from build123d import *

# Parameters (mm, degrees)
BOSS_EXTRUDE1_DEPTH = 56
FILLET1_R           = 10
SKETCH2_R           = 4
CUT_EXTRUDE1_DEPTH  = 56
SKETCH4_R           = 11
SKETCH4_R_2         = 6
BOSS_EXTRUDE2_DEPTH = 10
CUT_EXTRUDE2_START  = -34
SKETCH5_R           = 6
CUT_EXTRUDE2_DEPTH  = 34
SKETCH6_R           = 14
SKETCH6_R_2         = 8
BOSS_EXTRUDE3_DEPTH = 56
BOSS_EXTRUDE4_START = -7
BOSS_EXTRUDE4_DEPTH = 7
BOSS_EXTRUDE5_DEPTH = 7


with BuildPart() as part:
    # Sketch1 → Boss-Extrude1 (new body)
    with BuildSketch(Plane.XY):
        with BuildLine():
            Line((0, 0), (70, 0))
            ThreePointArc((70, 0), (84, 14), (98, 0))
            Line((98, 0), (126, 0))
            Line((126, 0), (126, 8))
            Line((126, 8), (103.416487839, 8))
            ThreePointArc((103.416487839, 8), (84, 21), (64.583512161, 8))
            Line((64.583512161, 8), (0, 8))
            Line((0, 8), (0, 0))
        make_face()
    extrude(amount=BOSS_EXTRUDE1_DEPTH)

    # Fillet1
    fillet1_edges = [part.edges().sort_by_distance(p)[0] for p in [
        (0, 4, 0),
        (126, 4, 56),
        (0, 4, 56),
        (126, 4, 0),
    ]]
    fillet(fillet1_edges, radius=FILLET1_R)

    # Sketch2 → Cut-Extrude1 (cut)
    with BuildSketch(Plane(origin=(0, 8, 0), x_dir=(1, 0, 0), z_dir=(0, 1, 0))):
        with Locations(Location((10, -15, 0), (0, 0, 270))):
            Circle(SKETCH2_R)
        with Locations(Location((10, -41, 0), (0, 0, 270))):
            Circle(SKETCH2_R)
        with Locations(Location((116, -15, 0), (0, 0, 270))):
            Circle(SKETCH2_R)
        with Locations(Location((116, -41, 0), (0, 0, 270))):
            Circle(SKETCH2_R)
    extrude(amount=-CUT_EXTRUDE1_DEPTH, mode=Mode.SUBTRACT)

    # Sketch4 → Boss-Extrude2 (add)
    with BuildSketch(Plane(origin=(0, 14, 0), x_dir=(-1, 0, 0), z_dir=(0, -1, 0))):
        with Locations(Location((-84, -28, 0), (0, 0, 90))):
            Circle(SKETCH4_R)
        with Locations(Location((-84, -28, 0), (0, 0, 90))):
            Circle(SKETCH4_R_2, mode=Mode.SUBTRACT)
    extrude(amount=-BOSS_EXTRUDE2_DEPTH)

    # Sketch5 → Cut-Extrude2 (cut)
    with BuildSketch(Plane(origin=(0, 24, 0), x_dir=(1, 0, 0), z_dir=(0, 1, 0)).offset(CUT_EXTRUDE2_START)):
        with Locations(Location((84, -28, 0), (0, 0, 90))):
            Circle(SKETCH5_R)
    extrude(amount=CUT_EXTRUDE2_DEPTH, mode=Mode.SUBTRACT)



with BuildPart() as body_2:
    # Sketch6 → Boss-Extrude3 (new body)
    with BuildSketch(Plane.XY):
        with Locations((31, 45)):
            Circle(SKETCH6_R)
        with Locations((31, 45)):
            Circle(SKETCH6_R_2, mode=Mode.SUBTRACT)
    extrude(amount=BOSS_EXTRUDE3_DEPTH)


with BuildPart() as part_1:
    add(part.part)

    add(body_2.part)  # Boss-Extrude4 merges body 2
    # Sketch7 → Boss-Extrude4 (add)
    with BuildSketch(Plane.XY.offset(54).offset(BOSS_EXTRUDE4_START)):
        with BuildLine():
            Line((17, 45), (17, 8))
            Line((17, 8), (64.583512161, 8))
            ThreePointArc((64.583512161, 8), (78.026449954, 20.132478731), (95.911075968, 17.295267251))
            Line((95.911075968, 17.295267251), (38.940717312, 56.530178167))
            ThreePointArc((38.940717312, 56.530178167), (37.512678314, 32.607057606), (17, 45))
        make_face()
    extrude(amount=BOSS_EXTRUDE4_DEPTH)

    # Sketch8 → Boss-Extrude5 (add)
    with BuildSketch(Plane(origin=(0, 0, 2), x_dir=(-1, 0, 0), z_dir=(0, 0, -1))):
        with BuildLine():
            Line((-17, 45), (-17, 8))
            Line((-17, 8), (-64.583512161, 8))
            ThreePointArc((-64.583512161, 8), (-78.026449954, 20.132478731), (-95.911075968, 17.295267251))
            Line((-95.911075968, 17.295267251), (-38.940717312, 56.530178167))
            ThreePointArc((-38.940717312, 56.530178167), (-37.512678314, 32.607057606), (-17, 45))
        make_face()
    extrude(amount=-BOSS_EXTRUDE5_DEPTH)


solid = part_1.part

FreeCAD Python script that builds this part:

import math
import FreeCAD as App
import Part
import Sketcher
Q = App.Units.Quantity


def edges_at(feature, points):
    """Names of the edges that pass closest to the given points."""
    edges = feature.Shape.Edges
    near = lambda p: min(range(len(edges)), key=lambda i: edges[i].distToShape(Part.Vertex(*p))[0])
    return sorted({f"Edge{near(p) + 1}" for p in points})

doc = App.newDocument("Part")
params = doc.addObject("Spreadsheet::Sheet", "Params")
for row, (alias, value) in enumerate([
    ("sketch1_radius", "14 mm"),
    ("sketch1_radius2", "21 mm"),
    ("sketch1_width", "70 mm"),
    ("sketch1_width2", "28 mm"),
    ("sketch1_height", "8 mm"),
    ("pad1_length", "56 mm"),
    ("fillet_radius", "10 mm"),
    ("sketch2_diameter", "8 mm"),
    ("pocket1_length", "56 mm"),
    ("sketch3_diameter", "22 mm"),
    ("sketch3_diameter2", "12 mm"),
    ("pad2_length", "10 mm"),
    ("sketch4_diameter", "12 mm"),
    ("pocket2_length", "34 mm"),
    ("sketch5_diameter", "28 mm"),
    ("sketch5_diameter2", "16 mm"),
    ("pad3_length", "56 mm"),
    ("sketch6_radius", "21 mm"),
    ("sketch6_radius2", "14 mm"),
    ("sketch6_height", "37 mm"),
    ("pad4_length", "7 mm"),
    ("sketch7_radius", "14 mm"),
    ("sketch7_radius2", "21 mm"),
    ("sketch7_height", "37 mm"),
    ("pad5_length", "7 mm"),
], start=1):
    params.set(f"A{row}", alias)
    params.set(f"B{row}", "=" + value)
    params.setAlias(f"B{row}", alias)

body = doc.addObject("PartDesign::Body", "Body")

# Sketch on XY plane
sketch1 = doc.addObject("Sketcher::SketchObject", "Sketch")
body.addObject(sketch1)
sketch1.AttachmentSupport = (doc.XY_Plane, [""])
sketch1.MapMode = "FlatFace"
sketch1.addGeometry([
    Part.LineSegment(App.Vector(0, 0, 0), App.Vector(70, 0, 0)),  # 0
    Part.ArcOfCircle(Part.Circle(App.Vector(84, 0, 0), App.Vector(0, 0, 1), 14), math.radians(0), math.radians(180)),  # 1
    Part.LineSegment(App.Vector(98, 0, 0), App.Vector(126, 0, 0)),  # 2
    Part.LineSegment(App.Vector(126, 0, 0), App.Vector(126, 8, 0)),  # 3
    Part.LineSegment(App.Vector(126, 8, 0), App.Vector(103, 8, 0)),  # 4
    Part.ArcOfCircle(Part.Circle(App.Vector(84, 0, 0), App.Vector(0, 0, 1), 21), math.radians(22), math.radians(158)),  # 5
    Part.LineSegment(App.Vector(65, 8, 0), App.Vector(0, 8, 0)),  # 6
    Part.LineSegment(App.Vector(0, 8, 0), App.Vector(0, 0, 0)),  # 7
], False)
sketch1.addConstraint([
    Sketcher.Constraint("Coincident", 0, 2, 1, 2),
    Sketcher.Constraint("Coincident", 1, 1, 2, 1),
    Sketcher.Constraint("Coincident", 2, 2, 3, 1),
    Sketcher.Constraint("Coincident", 3, 2, 4, 1),
    Sketcher.Constraint("Coincident", 4, 2, 5, 1),
    Sketcher.Constraint("Coincident", 5, 2, 6, 1),
    Sketcher.Constraint("Coincident", 6, 2, 7, 1),
    Sketcher.Constraint("Coincident", 7, 2, 0, 1),
    Sketcher.Constraint("Horizontal", 0),
    Sketcher.Constraint("Horizontal", 2),
    Sketcher.Constraint("Vertical", 3),
    Sketcher.Constraint("Horizontal", 4),
    Sketcher.Constraint("Horizontal", 6),
    Sketcher.Constraint("Vertical", 7),
    Sketcher.Constraint("Coincident", 7, 2, -1, 1),
    Sketcher.Constraint("Coincident", 5, 3, 1, 3),
    Sketcher.Constraint("PointOnObject", 1, 3, -1),
    Sketcher.Constraint("PointOnObject", 1, 1, -1),
    Sketcher.Constraint("Horizontal", 4, 2, 5, 2),
    Sketcher.Constraint("Radius", 1, Q("14 mm")),
    Sketcher.Constraint("Radius", 5, Q("21 mm")),
    Sketcher.Constraint("DistanceX", 0, 1, 0, 2, Q("70 mm")),
    Sketcher.Constraint("DistanceX", 2, 1, 2, 2, Q("28 mm")),
    Sketcher.Constraint("DistanceY", 3, 1, 3, 2, Q("8 mm")),
])
sketch1.setExpression("Constraints[19]", "Params.sketch1_radius")
sketch1.setExpression("Constraints[20]", "Params.sketch1_radius2")
sketch1.setExpression("Constraints[21]", "Params.sketch1_width")
sketch1.setExpression("Constraints[22]", "Params.sketch1_width2")
sketch1.setExpression("Constraints[23]", "Params.sketch1_height")
pad1 = doc.addObject("PartDesign::Pad", "Pad")
body.addObject(pad1)
pad1.Profile = sketch1
pad1.setExpression("Length", "Params.pad1_length")
doc.recompute()

fillet = doc.addObject("PartDesign::Fillet", "Fillet")
body.addObject(fillet)
fillet.Base = (pad1, edges_at(pad1, [
    (0, 4, 0),
    (126, 4, 56),
    (0, 4, 56),
    (126, 4, 0),
]))
fillet.setExpression("Radius", "Params.fillet_radius")

# Sketch on XZ plane
sketch2 = doc.addObject("Sketcher::SketchObject", "Sketch001")
body.addObject(sketch2)
sketch2.AttachmentSupport = (doc.XZ_Plane, [""])
sketch2.MapMode = "FlatFace"
sketch2.AttachmentOffset = App.Placement(App.Vector(0, 0, -8), App.Rotation())
sketch2.addGeometry([
    Part.Circle(App.Vector(10, 15, 0), App.Vector(0, 0, 1), 4),
    Part.Circle(App.Vector(10, 41, 0), App.Vector(0, 0, 1), 4),
    Part.Circle(App.Vector(116, 15, 0), App.Vector(0, 0, 1), 4),
    Part.Circle(App.Vector(116, 41, 0), App.Vector(0, 0, 1), 4),
], False)
sketch2.addConstraint([
    Sketcher.Constraint("Equal", 0, 1),
    Sketcher.Constraint("Equal", 1, 2),
    Sketcher.Constraint("Equal", 2, 3),
    Sketcher.Constraint("Horizontal", 0, 3, 2, 3),
    Sketcher.Constraint("Horizontal", 1, 3, 3, 3),
    Sketcher.Constraint("Vertical", 0, 3, 1, 3),
    Sketcher.Constraint("Vertical", 2, 3, 3, 3),
    Sketcher.Constraint("Diameter", 0, Q("8 mm")),
    Sketcher.Constraint("DistanceX", -1, 1, 0, 3, Q("10 mm")),
    Sketcher.Constraint("DistanceY", -1, 1, 0, 3, Q("15 mm")),
    Sketcher.Constraint("DistanceY", -1, 1, 1, 3, Q("41 mm")),
    Sketcher.Constraint("DistanceX", -1, 1, 2, 3, Q("116 mm")),
])
sketch2.setExpression("Constraints[7]", "Params.sketch2_diameter")
pocket1 = doc.addObject("PartDesign::Pocket", "Pocket")
body.addObject(pocket1)
pocket1.Profile = sketch2
pocket1.setExpression("Length", "Params.pocket1_length")
pocket1.Reversed = True

# Sketch on XZ plane
sketch3 = doc.addObject("Sketcher::SketchObject", "Sketch002")
body.addObject(sketch3)
sketch3.AttachmentSupport = (doc.XZ_Plane, [""])
sketch3.MapMode = "FlatFace"
sketch3.AttachmentOffset = App.Placement(App.Vector(0, 0, -14), App.Rotation())
sketch3.addGeometry([
    Part.Circle(App.Vector(84, 28, 0), App.Vector(0, 0, 1), 11),
    Part.Circle(App.Vector(84, 28, 0), App.Vector(0, 0, 1), 6),
], False)
sketch3.addConstraint([
    Sketcher.Constraint("Coincident", 1, 3, 0, 3),
    Sketcher.Constraint("Diameter", 0, Q("22 mm")),
    Sketcher.Constraint("Diameter", 1, Q("12 mm")),
    Sketcher.Constraint("DistanceX", -1, 1, 0, 3, Q("84 mm")),
    Sketcher.Constraint("DistanceY", -1, 1, 0, 3, Q("28 mm")),
])
sketch3.setExpression("Constraints[1]", "Params.sketch3_diameter")
sketch3.setExpression("Constraints[2]", "Params.sketch3_diameter2")
pad2 = doc.addObject("PartDesign::Pad", "Pad001")
body.addObject(pad2)
pad2.Profile = sketch3
pad2.setExpression("Length", "Params.pad2_length")
pad2.Reversed = True

# Sketch on XZ plane
sketch4 = doc.addObject("Sketcher::SketchObject", "Sketch003")
body.addObject(sketch4)
sketch4.AttachmentSupport = (doc.XZ_Plane, [""])
sketch4.MapMode = "FlatFace"
sketch4.AttachmentOffset = App.Placement(App.Vector(0, 0, 10), App.Rotation())
sketch4.addGeometry(Part.Circle(App.Vector(84, 28, 0), App.Vector(0, 0, 1), 6), False)
sketch4.addConstraint([
    Sketcher.Constraint("Diameter", 0, Q("12 mm")),
    Sketcher.Constraint("DistanceX", -1, 1, 0, 3, Q("84 mm")),
    Sketcher.Constraint("DistanceY", -1, 1, 0, 3, Q("28 mm")),
])
sketch4.setExpression("Constraints[0]", "Params.sketch4_diameter")
pocket2 = doc.addObject("PartDesign::Pocket", "Pocket001")
body.addObject(pocket2)
pocket2.Profile = sketch4
pocket2.setExpression("Length", "Params.pocket2_length")
body2 = doc.addObject("PartDesign::Body", "Body001")

# Sketch on XY plane
sketch5 = doc.addObject("Sketcher::SketchObject", "Sketch004")
body2.addObject(sketch5)
sketch5.AttachmentSupport = (doc.getObject("XY_Plane001"), [""])
sketch5.MapMode = "FlatFace"
sketch5.addGeometry([
    Part.Circle(App.Vector(31, 45, 0), App.Vector(0, 0, 1), 14),
    Part.Circle(App.Vector(31, 45, 0), App.Vector(0, 0, 1), 8),
], False)
sketch5.addConstraint([
    Sketcher.Constraint("Coincident", 1, 3, 0, 3),
    Sketcher.Constraint("Diameter", 0, Q("28 mm")),
    Sketcher.Constraint("Diameter", 1, Q("16 mm")),
    Sketcher.Constraint("DistanceX", -1, 1, 0, 3, Q("31 mm")),
    Sketcher.Constraint("DistanceY", -1, 1, 0, 3, Q("45 mm")),
])
sketch5.setExpression("Constraints[1]", "Params.sketch5_diameter")
sketch5.setExpression("Constraints[2]", "Params.sketch5_diameter2")
pad3 = doc.addObject("PartDesign::Pad", "Pad002")
body2.addObject(pad3)
pad3.Profile = sketch5
pad3.setExpression("Length", "Params.pad3_length")
body.AllowCompound = True
doc.recompute()

boolean = doc.addObject("PartDesign::Boolean", "Boolean")
body.addObject(boolean)
boolean.Type = "Fuse"
boolean.addObjects([body2])

# Sketch on XY plane
sketch6 = doc.addObject("Sketcher::SketchObject", "Sketch005")
body.addObject(sketch6)
sketch6.AttachmentSupport = (doc.XY_Plane, [""])
sketch6.MapMode = "FlatFace"
sketch6.AttachmentOffset = App.Placement(App.Vector(0, 0, 47), App.Rotation())
sketch6.addGeometry([
    Part.LineSegment(App.Vector(17, 45, 0), App.Vector(17, 8, 0)),  # 0
    Part.LineSegment(App.Vector(17, 8, 0), App.Vector(65, 8, 0)),  # 1
    Part.ArcOfCircle(Part.Circle(App.Vector(84, 0, 0), App.Vector(0, 0, 1), 21), math.radians(55), math.radians(158)),  # 2
    Part.LineSegment(App.Vector(96, 17, 0), App.Vector(39, 57, 0)),  # 3
    Part.ArcOfCircle(Part.Circle(App.Vector(31, 45, 0), App.Vector(0, 0, 1), 14), math.radians(180), math.radians(415)),  # 4
], False)
sketch6.addConstraint([
    Sketcher.Constraint("Coincident", 0, 2, 1, 1),
    Sketcher.Constraint("Coincident", 1, 2, 2, 2),
    Sketcher.Constraint("Tangent", 2, 1, 3, 1),
    Sketcher.Constraint("Tangent", 3, 2, 4, 2),
    Sketcher.Constraint("Tangent", 4, 1, 0, 1),
    Sketcher.Constraint("Vertical", 0),
    Sketcher.Constraint("Horizontal", 1),
    Sketcher.Constraint("PointOnObject", 2, 3, -1),
    Sketcher.Constraint("Radius", 2, Q("21 mm")),
    Sketcher.Constraint("Radius", 4, Q("14 mm")),
    Sketcher.Constraint("DistanceY", 0, 2, 0, 1, Q("37 mm")),
    Sketcher.Constraint("DistanceX", -1, 1, 2, 3, Q("84 mm")),
    Sketcher.Constraint("DistanceX", -1, 1, 4, 3, Q("31 mm")),
    Sketcher.Constraint("DistanceY", -1, 1, 4, 3, Q("45 mm")),
])
sketch6.setExpression("Constraints[8]", "Params.sketch6_radius")
sketch6.setExpression("Constraints[9]", "Params.sketch6_radius2")
sketch6.setExpression("Constraints[10]", "Params.sketch6_height")
pad4 = doc.addObject("PartDesign::Pad", "Pad003")
body.addObject(pad4)
pad4.Profile = sketch6
pad4.setExpression("Length", "Params.pad4_length")

# Sketch on XY plane
sketch7 = doc.addObject("Sketcher::SketchObject", "Sketch006")
body.addObject(sketch7)
sketch7.AttachmentSupport = (doc.XY_Plane, [""])
sketch7.MapMode = "FlatFace"
sketch7.AttachmentOffset = App.Placement(App.Vector(0, 0, 2), App.Rotation())
sketch7.addGeometry([
    Part.LineSegment(App.Vector(17, 8, 0), App.Vector(17, 45, 0)),  # 0
    Part.ArcOfCircle(Part.Circle(App.Vector(31, 45, 0), App.Vector(0, 0, 1), 14), math.radians(180), math.radians(415)),  # 1
    Part.LineSegment(App.Vector(39, 57, 0), App.Vector(96, 17, 0)),  # 2
    Part.ArcOfCircle(Part.Circle(App.Vector(84, 0, 0), App.Vector(0, 0, 1), 21), math.radians(55), math.radians(158)),  # 3
    Part.LineSegment(App.Vector(65, 8, 0), App.Vector(17, 8, 0)),  # 4
], False)
sketch7.addConstraint([
    Sketcher.Constraint("Tangent", 0, 2, 1, 1),
    Sketcher.Constraint("Tangent", 1, 2, 2, 1),
    Sketcher.Constraint("Tangent", 2, 2, 3, 1),
    Sketcher.Constraint("Coincident", 3, 2, 4, 1),
    Sketcher.Constraint("Coincident", 4, 2, 0, 1),
    Sketcher.Constraint("Vertical", 0),
    Sketcher.Constraint("Horizontal", 4),
    Sketcher.Constraint("PointOnObject", 3, 3, -1),
    Sketcher.Constraint("Radius", 1, Q("14 mm")),
    Sketcher.Constraint("Radius", 3, Q("21 mm")),
    Sketcher.Constraint("DistanceY", 0, 1, 0, 2, Q("37 mm")),
    Sketcher.Constraint("DistanceX", -1, 1, 1, 3, Q("31 mm")),
    Sketcher.Constraint("DistanceY", -1, 1, 1, 3, Q("45 mm")),
    Sketcher.Constraint("DistanceX", -1, 1, 3, 3, Q("84 mm")),
])
sketch7.setExpression("Constraints[8]", "Params.sketch7_radius")
sketch7.setExpression("Constraints[9]", "Params.sketch7_radius2")
sketch7.setExpression("Constraints[10]", "Params.sketch7_height")
pad5 = doc.addObject("PartDesign::Pad", "Pad004")
body.addObject(pad5)
pad5.Profile = sketch7
pad5.setExpression("Length", "Params.pad5_length")

doc.recompute()
